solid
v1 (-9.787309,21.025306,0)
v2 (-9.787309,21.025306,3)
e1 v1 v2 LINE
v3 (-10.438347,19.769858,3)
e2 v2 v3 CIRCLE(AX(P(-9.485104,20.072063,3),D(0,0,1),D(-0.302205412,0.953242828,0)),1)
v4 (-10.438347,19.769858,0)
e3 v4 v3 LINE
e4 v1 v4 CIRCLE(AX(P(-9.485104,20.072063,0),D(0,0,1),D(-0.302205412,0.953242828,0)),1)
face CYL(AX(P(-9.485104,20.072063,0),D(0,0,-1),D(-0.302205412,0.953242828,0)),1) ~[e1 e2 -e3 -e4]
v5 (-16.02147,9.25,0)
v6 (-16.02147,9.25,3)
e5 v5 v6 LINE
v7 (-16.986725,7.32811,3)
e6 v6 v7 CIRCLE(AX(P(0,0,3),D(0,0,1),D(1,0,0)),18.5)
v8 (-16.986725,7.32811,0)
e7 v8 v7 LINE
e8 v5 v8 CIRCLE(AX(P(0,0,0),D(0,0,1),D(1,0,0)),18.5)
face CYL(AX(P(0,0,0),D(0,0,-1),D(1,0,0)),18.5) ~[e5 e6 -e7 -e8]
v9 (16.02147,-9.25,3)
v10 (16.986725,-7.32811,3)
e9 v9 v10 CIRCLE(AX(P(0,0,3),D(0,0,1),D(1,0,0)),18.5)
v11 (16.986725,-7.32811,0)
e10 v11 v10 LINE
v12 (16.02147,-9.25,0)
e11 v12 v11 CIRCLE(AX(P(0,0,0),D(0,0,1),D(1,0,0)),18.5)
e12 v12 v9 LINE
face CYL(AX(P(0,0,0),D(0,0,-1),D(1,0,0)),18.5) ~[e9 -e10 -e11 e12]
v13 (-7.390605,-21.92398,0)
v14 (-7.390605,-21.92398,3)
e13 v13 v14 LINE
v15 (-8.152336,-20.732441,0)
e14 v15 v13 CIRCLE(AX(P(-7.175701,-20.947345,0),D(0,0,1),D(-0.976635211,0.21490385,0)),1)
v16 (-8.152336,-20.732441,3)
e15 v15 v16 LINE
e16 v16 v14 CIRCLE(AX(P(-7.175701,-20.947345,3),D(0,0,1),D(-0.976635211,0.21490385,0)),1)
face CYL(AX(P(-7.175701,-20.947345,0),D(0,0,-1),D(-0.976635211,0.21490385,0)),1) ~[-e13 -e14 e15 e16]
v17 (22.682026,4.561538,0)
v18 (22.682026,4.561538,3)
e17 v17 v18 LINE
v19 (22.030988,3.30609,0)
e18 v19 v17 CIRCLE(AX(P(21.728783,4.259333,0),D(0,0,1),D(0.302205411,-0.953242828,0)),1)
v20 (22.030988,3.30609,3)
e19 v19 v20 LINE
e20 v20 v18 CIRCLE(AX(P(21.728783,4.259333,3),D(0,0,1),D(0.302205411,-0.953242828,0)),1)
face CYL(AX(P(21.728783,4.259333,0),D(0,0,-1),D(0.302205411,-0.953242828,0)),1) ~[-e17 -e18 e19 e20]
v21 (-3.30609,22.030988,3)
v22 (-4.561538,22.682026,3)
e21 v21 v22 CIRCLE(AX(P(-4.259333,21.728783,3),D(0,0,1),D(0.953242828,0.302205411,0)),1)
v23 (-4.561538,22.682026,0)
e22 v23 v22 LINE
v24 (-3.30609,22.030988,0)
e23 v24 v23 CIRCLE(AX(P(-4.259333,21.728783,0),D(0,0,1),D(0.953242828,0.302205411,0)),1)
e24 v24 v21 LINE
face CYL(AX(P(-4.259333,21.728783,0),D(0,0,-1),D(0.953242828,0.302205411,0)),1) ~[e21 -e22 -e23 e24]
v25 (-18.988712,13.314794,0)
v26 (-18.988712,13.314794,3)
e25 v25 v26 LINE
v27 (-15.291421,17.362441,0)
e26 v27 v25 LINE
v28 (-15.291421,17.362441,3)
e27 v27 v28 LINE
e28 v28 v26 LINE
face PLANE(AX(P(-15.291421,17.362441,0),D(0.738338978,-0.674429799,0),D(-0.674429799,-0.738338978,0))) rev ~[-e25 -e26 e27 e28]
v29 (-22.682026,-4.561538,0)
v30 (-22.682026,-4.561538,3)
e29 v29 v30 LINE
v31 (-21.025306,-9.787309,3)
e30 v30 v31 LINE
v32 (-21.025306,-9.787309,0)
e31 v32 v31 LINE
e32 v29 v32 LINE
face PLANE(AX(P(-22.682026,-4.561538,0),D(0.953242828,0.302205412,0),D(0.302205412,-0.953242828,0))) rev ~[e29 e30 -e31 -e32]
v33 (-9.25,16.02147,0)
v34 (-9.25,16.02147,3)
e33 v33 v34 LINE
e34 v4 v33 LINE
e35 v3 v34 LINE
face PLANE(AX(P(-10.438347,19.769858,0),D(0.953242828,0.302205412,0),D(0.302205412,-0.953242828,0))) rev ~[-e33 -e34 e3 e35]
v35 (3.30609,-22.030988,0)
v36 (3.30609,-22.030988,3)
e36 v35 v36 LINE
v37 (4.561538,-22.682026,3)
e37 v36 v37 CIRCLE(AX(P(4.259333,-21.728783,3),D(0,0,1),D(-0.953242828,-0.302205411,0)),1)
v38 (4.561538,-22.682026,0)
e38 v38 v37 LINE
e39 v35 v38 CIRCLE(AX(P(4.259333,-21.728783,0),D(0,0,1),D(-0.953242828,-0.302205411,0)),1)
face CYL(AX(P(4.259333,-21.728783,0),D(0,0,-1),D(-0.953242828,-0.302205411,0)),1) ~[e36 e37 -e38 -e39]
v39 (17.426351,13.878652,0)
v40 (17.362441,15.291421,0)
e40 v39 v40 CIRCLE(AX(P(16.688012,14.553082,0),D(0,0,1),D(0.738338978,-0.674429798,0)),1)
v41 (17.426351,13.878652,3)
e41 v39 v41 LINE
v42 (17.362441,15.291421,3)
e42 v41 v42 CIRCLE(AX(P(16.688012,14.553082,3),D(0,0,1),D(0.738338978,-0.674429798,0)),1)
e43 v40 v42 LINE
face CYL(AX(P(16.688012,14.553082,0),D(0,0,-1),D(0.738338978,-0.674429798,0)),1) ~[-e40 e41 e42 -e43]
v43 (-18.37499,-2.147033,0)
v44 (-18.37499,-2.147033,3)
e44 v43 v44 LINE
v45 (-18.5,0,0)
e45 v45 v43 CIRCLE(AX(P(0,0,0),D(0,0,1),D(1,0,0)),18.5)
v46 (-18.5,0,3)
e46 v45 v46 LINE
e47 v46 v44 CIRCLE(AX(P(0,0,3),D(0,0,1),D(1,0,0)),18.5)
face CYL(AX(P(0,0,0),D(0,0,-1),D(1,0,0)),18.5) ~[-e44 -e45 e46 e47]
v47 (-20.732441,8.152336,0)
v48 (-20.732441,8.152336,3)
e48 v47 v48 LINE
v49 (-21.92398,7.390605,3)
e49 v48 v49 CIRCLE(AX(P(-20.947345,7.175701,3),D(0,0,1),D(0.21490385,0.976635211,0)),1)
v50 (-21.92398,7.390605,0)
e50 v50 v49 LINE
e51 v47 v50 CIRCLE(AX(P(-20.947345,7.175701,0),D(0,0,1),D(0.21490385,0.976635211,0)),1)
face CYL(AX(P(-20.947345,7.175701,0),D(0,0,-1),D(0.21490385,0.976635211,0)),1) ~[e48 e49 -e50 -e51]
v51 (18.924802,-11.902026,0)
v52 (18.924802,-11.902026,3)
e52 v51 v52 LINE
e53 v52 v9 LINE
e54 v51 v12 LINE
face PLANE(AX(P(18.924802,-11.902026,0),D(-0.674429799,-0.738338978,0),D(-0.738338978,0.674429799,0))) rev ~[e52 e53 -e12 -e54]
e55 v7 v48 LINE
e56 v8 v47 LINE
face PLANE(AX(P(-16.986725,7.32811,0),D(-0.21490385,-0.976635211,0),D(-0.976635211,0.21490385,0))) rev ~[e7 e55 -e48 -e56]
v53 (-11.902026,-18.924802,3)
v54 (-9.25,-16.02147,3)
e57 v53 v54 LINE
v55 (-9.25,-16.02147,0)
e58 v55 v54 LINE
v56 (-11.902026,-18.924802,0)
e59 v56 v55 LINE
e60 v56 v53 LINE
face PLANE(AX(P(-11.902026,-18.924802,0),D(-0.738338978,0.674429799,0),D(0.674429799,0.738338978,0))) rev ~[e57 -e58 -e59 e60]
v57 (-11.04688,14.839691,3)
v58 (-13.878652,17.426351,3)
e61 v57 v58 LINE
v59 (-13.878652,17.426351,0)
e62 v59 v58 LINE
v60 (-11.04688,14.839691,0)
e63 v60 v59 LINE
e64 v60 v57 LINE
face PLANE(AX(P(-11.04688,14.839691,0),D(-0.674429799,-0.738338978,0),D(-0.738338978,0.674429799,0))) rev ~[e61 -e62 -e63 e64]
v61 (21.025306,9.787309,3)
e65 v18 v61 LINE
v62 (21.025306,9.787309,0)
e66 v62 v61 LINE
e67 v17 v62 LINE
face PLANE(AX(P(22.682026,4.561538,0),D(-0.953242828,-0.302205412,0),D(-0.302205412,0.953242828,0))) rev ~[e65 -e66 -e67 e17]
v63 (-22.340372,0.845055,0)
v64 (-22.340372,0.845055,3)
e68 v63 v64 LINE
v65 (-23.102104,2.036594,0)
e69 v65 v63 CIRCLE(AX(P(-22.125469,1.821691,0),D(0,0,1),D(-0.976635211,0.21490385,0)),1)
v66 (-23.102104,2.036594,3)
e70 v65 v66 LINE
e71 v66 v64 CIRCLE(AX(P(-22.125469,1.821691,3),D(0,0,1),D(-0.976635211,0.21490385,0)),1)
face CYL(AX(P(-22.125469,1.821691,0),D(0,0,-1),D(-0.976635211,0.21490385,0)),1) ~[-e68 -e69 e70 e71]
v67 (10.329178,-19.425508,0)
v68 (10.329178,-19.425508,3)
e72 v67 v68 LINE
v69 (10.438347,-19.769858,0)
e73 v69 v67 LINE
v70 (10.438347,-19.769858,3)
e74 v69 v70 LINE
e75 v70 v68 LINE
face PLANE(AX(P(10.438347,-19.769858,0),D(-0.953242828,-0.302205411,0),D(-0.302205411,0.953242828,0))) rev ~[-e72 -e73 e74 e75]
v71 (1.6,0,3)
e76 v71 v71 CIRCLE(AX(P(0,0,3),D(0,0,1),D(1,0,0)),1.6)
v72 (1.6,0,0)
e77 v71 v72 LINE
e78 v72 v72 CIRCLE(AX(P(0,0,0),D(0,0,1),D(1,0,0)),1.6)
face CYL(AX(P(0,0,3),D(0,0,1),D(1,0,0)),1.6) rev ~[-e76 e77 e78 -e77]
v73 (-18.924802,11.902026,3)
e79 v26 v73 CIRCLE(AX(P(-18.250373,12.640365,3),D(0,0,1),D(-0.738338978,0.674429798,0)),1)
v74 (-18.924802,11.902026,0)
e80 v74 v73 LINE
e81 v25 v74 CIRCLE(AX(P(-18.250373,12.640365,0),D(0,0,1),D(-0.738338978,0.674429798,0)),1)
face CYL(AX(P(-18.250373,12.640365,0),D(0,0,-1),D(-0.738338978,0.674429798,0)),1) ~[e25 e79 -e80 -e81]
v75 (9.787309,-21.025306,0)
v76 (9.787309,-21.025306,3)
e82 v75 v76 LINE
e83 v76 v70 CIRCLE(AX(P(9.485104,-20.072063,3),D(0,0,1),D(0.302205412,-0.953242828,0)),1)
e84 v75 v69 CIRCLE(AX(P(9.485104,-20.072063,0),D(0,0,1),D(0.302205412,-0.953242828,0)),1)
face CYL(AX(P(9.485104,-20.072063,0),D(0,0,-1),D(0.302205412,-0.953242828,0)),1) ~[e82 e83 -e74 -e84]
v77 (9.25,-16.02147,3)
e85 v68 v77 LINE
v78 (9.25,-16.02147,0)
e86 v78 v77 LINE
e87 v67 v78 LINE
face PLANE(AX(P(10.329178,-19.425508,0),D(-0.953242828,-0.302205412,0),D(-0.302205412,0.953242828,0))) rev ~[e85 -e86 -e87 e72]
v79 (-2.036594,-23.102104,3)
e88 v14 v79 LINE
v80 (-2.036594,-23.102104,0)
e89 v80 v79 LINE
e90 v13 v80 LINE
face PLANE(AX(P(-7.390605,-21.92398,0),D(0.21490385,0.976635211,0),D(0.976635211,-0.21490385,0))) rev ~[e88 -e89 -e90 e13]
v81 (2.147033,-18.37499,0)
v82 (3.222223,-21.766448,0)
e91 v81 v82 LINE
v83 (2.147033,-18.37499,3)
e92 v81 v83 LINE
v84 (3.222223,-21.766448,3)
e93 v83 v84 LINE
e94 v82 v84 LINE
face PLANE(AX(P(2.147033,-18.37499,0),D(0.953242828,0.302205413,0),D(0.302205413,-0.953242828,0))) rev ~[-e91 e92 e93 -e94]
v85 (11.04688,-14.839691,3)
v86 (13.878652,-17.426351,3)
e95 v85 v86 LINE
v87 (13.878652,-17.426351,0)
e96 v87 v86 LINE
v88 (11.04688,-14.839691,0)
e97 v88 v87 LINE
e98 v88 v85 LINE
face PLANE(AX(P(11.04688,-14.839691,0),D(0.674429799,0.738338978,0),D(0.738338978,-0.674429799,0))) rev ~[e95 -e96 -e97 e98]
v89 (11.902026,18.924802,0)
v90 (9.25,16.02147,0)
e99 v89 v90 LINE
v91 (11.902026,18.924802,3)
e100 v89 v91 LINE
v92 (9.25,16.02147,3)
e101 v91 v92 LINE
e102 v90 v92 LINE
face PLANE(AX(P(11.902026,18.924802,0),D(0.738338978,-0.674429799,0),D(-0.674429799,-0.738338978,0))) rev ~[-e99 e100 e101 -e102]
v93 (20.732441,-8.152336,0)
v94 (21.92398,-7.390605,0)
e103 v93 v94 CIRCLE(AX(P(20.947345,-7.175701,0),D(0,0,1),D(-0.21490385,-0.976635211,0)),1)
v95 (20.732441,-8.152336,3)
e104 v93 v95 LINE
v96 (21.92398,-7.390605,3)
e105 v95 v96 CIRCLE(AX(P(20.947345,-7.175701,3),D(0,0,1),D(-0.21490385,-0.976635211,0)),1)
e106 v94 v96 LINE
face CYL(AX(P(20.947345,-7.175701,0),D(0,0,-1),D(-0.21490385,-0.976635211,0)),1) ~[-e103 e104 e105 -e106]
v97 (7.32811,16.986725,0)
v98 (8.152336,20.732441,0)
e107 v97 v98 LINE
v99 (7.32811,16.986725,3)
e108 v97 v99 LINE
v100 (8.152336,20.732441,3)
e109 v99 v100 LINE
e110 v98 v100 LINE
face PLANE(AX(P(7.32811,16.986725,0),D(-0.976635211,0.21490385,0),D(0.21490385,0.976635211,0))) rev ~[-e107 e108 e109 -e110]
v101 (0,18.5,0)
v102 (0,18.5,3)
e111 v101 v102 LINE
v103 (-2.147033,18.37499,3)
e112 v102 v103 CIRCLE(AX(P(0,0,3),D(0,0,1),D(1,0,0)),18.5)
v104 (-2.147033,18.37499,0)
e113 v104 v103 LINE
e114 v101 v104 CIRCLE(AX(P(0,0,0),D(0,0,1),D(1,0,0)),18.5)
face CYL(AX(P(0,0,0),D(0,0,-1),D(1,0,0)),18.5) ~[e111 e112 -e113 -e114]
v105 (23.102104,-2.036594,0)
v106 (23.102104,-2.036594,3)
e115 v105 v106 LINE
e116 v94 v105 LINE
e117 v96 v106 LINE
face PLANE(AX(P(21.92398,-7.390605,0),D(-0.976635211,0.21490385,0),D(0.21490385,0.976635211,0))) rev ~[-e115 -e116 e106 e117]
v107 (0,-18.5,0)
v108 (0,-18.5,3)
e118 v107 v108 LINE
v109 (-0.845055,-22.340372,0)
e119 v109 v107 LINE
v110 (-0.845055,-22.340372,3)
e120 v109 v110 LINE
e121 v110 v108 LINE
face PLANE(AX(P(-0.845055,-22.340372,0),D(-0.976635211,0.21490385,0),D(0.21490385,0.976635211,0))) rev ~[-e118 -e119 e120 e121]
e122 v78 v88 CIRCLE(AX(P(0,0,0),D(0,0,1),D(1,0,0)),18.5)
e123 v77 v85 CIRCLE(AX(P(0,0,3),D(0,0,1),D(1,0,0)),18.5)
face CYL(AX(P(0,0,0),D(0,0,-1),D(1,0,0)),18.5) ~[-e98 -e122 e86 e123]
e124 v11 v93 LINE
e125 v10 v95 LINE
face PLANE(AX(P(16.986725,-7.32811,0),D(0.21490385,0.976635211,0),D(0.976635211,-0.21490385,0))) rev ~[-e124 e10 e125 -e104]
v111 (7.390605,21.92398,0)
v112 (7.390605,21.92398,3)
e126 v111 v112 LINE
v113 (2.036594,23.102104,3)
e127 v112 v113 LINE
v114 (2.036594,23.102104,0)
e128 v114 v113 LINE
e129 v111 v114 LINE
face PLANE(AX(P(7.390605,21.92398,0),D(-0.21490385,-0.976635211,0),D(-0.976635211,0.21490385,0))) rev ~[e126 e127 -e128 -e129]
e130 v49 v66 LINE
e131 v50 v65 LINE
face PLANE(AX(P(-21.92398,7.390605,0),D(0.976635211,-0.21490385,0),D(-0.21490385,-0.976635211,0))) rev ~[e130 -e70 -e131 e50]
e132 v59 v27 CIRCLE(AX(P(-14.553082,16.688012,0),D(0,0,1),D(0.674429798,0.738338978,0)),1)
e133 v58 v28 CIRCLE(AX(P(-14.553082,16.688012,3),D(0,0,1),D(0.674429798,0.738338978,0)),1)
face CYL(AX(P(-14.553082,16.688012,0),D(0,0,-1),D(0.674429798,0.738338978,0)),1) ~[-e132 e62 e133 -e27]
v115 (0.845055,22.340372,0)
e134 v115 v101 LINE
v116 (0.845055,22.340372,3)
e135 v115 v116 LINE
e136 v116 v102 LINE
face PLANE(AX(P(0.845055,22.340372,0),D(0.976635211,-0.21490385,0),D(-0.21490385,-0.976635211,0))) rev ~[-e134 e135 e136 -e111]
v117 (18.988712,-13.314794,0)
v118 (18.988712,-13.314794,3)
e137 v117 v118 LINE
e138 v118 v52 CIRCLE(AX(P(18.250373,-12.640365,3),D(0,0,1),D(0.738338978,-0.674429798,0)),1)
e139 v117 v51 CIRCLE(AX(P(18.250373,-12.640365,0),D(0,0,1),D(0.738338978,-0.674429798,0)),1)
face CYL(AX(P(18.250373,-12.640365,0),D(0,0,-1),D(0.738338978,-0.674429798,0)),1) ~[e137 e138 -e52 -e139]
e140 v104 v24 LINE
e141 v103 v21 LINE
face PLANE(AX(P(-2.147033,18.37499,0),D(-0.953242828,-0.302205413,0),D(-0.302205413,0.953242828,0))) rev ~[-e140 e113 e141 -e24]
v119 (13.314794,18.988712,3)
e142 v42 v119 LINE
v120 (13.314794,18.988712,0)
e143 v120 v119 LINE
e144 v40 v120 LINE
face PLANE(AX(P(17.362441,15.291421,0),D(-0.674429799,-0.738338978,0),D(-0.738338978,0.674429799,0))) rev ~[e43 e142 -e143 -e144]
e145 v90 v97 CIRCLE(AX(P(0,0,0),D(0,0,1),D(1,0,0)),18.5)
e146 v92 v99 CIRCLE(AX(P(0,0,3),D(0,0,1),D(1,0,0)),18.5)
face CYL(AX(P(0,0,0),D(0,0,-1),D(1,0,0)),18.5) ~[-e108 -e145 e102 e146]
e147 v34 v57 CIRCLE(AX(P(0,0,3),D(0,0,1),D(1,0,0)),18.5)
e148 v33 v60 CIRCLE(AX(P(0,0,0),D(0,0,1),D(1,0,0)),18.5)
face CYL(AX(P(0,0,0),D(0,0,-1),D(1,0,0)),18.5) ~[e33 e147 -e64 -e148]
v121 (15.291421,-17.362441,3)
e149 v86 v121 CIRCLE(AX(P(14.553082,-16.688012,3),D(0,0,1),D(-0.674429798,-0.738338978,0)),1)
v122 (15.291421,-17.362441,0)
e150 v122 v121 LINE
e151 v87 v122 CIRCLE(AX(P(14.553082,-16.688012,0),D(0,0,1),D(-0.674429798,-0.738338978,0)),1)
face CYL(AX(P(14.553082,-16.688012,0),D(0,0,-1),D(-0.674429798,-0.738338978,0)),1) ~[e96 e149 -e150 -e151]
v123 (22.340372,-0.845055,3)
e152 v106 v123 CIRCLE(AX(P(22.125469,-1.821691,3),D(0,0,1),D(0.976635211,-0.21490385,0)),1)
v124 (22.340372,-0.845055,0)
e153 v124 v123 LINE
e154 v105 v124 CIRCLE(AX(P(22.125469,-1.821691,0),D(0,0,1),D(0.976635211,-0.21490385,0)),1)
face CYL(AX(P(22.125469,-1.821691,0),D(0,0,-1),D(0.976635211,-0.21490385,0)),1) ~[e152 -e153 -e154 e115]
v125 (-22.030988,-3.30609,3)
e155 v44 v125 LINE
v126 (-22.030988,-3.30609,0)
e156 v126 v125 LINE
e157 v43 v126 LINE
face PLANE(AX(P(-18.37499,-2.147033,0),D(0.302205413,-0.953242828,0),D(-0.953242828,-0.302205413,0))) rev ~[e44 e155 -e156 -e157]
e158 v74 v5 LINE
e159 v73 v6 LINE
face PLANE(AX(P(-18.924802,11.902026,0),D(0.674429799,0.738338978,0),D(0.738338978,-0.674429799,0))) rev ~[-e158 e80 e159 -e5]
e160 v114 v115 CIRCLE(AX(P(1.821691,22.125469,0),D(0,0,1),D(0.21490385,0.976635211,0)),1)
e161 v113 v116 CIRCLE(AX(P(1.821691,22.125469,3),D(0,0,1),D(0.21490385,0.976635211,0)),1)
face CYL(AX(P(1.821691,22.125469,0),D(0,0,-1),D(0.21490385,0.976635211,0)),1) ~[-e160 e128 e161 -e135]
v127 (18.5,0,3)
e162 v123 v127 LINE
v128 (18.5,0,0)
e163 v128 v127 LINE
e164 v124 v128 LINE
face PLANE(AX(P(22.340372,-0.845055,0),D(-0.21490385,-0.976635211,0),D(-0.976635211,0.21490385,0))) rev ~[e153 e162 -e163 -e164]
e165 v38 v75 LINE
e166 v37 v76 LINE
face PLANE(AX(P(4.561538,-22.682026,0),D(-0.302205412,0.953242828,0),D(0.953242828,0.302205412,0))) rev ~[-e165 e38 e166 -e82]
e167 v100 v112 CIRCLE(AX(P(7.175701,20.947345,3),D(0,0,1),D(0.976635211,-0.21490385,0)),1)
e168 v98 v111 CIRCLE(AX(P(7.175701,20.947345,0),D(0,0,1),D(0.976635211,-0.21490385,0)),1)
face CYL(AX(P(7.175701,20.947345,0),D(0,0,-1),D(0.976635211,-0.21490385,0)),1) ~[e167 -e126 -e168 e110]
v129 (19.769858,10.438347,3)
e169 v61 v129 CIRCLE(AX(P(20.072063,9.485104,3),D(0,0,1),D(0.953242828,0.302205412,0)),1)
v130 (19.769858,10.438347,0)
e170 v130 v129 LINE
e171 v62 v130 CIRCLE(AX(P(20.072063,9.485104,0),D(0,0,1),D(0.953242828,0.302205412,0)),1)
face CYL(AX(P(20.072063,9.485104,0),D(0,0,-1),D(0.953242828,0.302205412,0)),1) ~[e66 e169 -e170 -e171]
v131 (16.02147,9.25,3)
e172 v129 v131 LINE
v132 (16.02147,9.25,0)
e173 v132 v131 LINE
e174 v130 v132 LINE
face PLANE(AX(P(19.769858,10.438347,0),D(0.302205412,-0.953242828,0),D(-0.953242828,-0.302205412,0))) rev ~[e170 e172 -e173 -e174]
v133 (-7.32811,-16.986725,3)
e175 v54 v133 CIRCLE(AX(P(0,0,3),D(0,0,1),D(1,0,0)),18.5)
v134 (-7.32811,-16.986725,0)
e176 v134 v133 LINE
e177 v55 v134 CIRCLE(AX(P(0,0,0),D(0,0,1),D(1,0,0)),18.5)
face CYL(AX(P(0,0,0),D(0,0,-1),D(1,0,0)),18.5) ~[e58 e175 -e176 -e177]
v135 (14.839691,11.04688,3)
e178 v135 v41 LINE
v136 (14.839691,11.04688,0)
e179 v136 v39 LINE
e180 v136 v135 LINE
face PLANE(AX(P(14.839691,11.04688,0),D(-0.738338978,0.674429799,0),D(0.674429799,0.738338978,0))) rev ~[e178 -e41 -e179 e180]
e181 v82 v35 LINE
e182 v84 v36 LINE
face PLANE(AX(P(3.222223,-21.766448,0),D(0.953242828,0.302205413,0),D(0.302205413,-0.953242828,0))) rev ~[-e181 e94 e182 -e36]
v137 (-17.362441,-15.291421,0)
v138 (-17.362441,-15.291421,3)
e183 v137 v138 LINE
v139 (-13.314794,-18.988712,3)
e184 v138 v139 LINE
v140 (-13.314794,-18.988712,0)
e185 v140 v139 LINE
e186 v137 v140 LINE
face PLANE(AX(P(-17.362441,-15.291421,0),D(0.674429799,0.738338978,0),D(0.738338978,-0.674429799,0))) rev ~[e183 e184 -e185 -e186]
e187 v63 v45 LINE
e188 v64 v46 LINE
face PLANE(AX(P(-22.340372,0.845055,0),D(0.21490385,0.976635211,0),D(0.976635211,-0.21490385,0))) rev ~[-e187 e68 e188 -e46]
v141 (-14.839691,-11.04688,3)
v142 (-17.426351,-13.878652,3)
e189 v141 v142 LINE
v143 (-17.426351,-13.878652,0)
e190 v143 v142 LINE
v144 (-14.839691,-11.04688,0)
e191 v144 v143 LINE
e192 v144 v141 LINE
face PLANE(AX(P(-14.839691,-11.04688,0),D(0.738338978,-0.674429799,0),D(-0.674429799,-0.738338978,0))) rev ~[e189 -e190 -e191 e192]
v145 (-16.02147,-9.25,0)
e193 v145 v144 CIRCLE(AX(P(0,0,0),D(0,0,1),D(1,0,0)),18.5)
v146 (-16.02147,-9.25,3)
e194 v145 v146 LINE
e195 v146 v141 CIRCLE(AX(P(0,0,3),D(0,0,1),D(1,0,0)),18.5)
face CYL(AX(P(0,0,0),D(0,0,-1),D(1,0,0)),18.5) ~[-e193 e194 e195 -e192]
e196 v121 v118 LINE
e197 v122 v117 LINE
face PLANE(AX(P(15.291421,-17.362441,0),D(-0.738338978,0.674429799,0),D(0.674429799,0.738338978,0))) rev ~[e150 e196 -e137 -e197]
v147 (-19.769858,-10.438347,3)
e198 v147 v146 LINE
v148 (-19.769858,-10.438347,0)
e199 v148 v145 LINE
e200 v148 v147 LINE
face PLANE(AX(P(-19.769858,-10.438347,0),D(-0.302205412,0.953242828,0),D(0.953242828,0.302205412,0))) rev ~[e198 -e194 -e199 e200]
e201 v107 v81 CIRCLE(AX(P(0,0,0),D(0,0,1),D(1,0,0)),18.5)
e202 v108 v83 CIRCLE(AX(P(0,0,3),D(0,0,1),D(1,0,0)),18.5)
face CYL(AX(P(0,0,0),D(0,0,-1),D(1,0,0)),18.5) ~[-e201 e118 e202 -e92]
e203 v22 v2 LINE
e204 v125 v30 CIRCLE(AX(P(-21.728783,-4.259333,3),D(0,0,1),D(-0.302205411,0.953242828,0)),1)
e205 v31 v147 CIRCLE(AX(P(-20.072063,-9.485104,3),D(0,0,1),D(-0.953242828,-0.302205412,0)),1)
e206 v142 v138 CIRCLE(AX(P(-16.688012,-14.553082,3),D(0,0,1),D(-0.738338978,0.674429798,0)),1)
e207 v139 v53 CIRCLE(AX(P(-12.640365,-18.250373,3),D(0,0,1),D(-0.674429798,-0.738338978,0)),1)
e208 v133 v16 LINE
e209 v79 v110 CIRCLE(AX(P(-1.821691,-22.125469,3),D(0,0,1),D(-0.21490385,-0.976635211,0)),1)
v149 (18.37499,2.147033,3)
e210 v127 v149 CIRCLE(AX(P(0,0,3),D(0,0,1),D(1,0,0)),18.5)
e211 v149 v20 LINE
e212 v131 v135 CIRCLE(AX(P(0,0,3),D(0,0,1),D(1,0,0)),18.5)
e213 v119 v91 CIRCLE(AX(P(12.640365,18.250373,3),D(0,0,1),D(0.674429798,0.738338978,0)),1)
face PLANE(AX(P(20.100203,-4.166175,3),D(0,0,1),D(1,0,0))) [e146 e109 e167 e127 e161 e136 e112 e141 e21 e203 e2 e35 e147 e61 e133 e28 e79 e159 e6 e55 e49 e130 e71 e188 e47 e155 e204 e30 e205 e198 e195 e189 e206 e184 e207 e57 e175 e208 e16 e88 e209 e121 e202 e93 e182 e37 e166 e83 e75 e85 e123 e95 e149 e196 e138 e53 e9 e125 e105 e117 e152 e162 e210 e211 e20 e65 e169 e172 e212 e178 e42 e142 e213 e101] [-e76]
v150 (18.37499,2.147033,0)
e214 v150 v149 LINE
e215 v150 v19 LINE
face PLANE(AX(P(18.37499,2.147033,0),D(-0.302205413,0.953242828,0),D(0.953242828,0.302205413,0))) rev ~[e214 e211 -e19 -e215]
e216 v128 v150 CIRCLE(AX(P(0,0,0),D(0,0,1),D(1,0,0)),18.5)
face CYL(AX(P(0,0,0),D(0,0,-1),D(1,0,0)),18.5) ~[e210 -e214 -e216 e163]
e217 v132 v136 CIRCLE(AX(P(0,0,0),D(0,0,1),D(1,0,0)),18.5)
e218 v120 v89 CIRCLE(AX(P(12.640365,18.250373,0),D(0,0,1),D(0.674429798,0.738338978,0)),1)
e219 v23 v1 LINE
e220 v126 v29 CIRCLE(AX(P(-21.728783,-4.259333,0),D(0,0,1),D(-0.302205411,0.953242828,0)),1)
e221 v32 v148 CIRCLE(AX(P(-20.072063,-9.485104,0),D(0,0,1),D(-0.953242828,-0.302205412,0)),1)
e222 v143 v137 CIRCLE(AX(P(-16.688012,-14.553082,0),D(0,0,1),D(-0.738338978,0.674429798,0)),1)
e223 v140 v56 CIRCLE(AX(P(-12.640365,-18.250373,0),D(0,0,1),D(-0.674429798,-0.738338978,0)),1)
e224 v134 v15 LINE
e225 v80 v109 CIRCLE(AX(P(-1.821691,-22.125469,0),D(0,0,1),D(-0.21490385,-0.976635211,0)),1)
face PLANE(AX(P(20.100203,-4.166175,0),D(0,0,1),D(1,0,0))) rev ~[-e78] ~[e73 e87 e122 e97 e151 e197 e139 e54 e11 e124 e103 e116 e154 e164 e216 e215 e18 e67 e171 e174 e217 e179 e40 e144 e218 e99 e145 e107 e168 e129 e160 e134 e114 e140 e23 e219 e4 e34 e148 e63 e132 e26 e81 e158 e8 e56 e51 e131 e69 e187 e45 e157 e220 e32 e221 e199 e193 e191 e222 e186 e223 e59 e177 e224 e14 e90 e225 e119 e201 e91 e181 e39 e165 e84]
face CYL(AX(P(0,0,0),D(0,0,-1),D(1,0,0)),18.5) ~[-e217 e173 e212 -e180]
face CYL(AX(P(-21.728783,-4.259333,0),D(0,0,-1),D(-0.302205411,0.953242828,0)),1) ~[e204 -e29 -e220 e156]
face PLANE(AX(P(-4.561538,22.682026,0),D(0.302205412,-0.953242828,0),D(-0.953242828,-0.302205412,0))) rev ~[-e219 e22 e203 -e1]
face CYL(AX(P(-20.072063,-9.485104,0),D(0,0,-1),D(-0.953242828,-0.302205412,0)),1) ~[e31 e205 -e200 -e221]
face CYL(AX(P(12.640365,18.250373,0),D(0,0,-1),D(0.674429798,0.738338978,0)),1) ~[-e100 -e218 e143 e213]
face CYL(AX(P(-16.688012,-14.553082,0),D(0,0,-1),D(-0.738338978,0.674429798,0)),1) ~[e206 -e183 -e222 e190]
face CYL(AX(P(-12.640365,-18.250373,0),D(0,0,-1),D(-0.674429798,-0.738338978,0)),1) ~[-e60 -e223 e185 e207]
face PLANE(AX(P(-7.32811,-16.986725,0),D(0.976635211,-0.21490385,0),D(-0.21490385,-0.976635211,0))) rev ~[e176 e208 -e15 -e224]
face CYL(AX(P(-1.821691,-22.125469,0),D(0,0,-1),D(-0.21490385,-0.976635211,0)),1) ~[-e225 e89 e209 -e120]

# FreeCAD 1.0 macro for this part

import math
import FreeCAD as App
import Part
import Sketcher
from FreeCAD import Vector

doc = App.newDocument("Part")
body = doc.addObject("PartDesign::Body", "Body")

sketch1 = body.newObject("Sketcher::SketchObject", "Sketch")
sketch1.AttachmentSupport = (doc.getObject("XY_Plane"), [""])
sketch1.MapMode = "FlatFace"
sketch1.addGeometry(Part.Circle(Vector(0, 0, 0), Vector(0, 0, 1), 18.5), False)
sketch1.addConstraint(Sketcher.Constraint("Coincident", 0, 3, -1, 1))
sketch1.addConstraint(Sketcher.Constraint("Diameter", 0, 37.0))
pad1 = body.newObject("PartDesign::Pad", "Pad")
pad1.Profile = sketch1
pad1.Length = 3

sketch2 = body.newObject("Sketcher::SketchObject", "Sketch001")
sketch2.AttachmentSupport = (doc.getObject("XY_Plane"), [""])
sketch2.MapMode = "FlatFace"
sketch2.addGeometry(Part.LineSegment(Vector(0.845055, 22.340372, 0), Vector(0, 18.5, 0)), False)
sketch2.addGeometry(Part.ArcOfCircle(Part.Circle(Vector(0, 0, 0), Vector(0, 0, 1), 18.5), math.radians(66.664529), math.radians(90)), False)
sketch2.addGeometry(Part.LineSegment(Vector(7.32811, 16.986725, 0), Vector(8.152336, 20.732441, 0)), False)
sketch2.addGeometry(Part.ArcOfCircle(Part.Circle(Vector(7.175701, 20.947345, 0), Vector(0, 0, 1), 1), math.radians(-12.409886), math.radians(77.590114)), False)
sketch2.addGeometry(Part.LineSegment(Vector(7.390605, 21.92398, 0), Vector(2.036594, 23.102104, 0)), False)
sketch2.addGeometry(Part.ArcOfCircle(Part.Circle(Vector(1.821691, 22.125469, 0), Vector(0, 0, 1), 1), math.radians(77.590114), math.radians(167.590114)), False)
sketch2.addGeometry(Part.LineSegment(Vector(14.839691, 11.04688, 0), Vector(17.426351, 13.878652, 0)), False)
sketch2.addGeometry(Part.ArcOfCircle(Part.Circle(Vector(16.688012, 14.553082, 0), Vector(0, 0, 1), 1), math.radians(-42.409886), math.radians(47.590114)), False)
sketch2.addGeometry(Part.LineSegment(Vector(17.362441, 15.291421, 0), Vector(13.314794, 18.988712, 0)), False)
sketch2.addGeometry(Part.ArcOfCircle(Part.Circle(Vector(12.640365, 18.250373, 0), Vector(0, 0, 1), 1), math.radians(47.590114), math.radians(137.590114)), False)
sketch2.addGeometry(Part.LineSegment(Vector(11.902026, 18.924802, 0), Vector(9.25, 16.02147, 0)), False)
sketch2.addGeometry(Part.ArcOfCircle(Part.Circle(Vector(0, 0, 0), Vector(0, 0, 1), 18.5), math.radians(36.664529), math.radians(60)), False)
sketch2.addGeometry(Part.LineSegment(Vector(18.37499, 2.147033, 0), Vector(22.030988, 3.30609, 0)), False)
sketch2.addGeometry(Part.ArcOfCircle(Part.Circle(Vector(21.728783, 4.259333, 0), Vector(0, 0, 1), 1), math.radians(-72.409887), math.radians(17.590114)), False)
sketch2.addGeometry(Part.LineSegment(Vector(22.682026, 4.561538, 0), Vector(21.025306, 9.787309, 0)), False)
sketch2.addGeometry(Part.ArcOfCircle(Part.Circle(Vector(20.072063, 9.485104, 0), Vector(0, 0, 1), 1), math.radians(17.590114), math.radians(107.590114)), False)
sketch2.addGeometry(Part.LineSegment(Vector(19.769858, 10.438347, 0), Vector(16.02147, 9.25, 0)), False)
sketch2.addGeometry(Part.ArcOfCircle(Part.Circle(Vector(0, 0, 0), Vector(0, 0, 1), 18.5), math.radians(6.664529), math.radians(30)), False)
sketch2.addGeometry(Part.LineSegment(Vector(16.986725, -7.32811, 0), Vector(20.732441, -8.152336, 0)), False)
sketch2.addGeometry(Part.ArcOfCircle(Part.Circle(Vector(20.947345, -7.175701, 0), Vector(0, 0, 1), 1), math.radians(-102.409886), math.radians(-12.409886)), False)
sketch2.addGeometry(Part.LineSegment(Vector(21.92398, -7.390605, 0), Vector(23.102104, -2.036594, 0)), False)
sketch2.addGeometry(Part.ArcOfCircle(Part.Circle(Vector(22.125469, -1.821691, 0), Vector(0, 0, 1), 1), math.radians(-12.409886), math.radians(77.590114)), False)
sketch2.addGeometry(Part.LineSegment(Vector(22.340372, -0.845055, 0), Vector(18.5, 0, 0)), False)
sketch2.addGeometry(Part.ArcOfCircle(Part.Circle(Vector(0, 0, 0), Vector(0, 0, 1), 18.5), math.radians(-23.335471), math.radians(0)), False)
sketch2.addGeometry(Part.LineSegment(Vector(11.04688, -14.839691, 0), Vector(13.878652, -17.426351, 0)), False)
sketch2.addGeometry(Part.ArcOfCircle(Part.Circle(Vector(14.553082, -16.688012, 0), Vector(0, 0, 1), 1), math.radians(-132.409886), math.radians(-42.409886)), False)
sketch2.addGeometry(Part.LineSegment(Vector(15.291421, -17.362441, 0), Vector(18.988712, -13.314794, 0)), False)
sketch2.addGeometry(Part.ArcOfCircle(Part.Circle(Vector(18.250373, -12.640365, 0), Vector(0, 0, 1), 1), math.radians(-42.409886), math.radians(47.590114)), False)
sketch2.addGeometry(Part.LineSegment(Vector(18.924802, -11.902026, 0), Vector(16.02147, -9.25, 0)), False)
sketch2.addGeometry(Part.ArcOfCircle(Part.Circle(Vector(0, 0, 0), Vector(0, 0, 1), 18.5), math.radians(-53.335471), math.radians(-30)), False)
sketch2.addGeometry(Part.LineSegment(Vector(3.222223, -21.766448, 0), Vector(3.30609, -22.030988, 0)), False)
sketch2.addGeometry(Part.ArcOfCircle(Part.Circle(Vector(4.259333, -21.728783, 0), Vector(0, 0, 1), 1), math.radians(-162.409887), math.radians(-72.409886)), False)
sketch2.addGeometry(Part.LineSegment(Vector(4.561538, -22.682026, 0), Vector(9.787309, -21.025306, 0)), False)
sketch2.addGeometry(Part.ArcOfCircle(Part.Circle(Vector(9.485104, -20.072063, 0), Vector(0, 0, 1), 1), math.radians(-72.409886), math.radians(17.590114)), False)
sketch2.addGeometry(Part.LineSegment(Vector(10.438347, -19.769858, 0), Vector(10.329178, -19.425508, 0)), False)
sketch2.addGeometry(Part.LineSegment(Vector(10.329178, -19.425508, 0), Vector(9.25, -16.02147, 0)), False)
sketch2.addGeometry(Part.ArcOfCircle(Part.Circle(Vector(0, 0, 0), Vector(0, 0, 1), 18.5), math.radians(-83.335471), math.radians(-60)), False)
sketch2.addGeometry(Part.LineSegment(Vector(2.147033, -18.37499, 0), Vector(3.222223, -21.766448, 0)), False)
sketch2.addGeometry(Part.LineSegment(Vector(-7.32811, -16.986725, 0), Vector(-8.152336, -20.732441, 0)), False)
sketch2.addGeometry(Part.ArcOfCircle(Part.Circle(Vector(-7.175701, -20.947345, 0), Vector(0, 0, 1), 1), math.radians(167.590114), math.radians(257.590114)), False)
sketch2.addGeometry(Part.LineSegment(Vector(-7.390605, -21.92398, 0), Vector(-2.036594, -23.102104, 0)), False)
sketch2.addGeometry(Part.ArcOfCircle(Part.Circle(Vector(-1.821691, -22.125469, 0), Vector(0, 0, 1), 1), math.radians(-102.409886), math.radians(-12.409886)), False)
sketch2.addGeometry(Part.LineSegment(Vector(-0.845055, -22.340372, 0), Vector(0, -18.5, 0)), False)
sketch2.addGeometry(Part.ArcOfCircle(Part.Circle(Vector(0, 0, 0), Vector(0, 0, 1), 18.5), math.radians(-113.335471), math.radians(-90)), False)
sketch2.addGeometry(Part.LineSegment(Vector(-14.839691, -11.04688, 0), Vector(-17.426351, -13.878652, 0)), False)
sketch2.addGeometry(Part.ArcOfCircle(Part.Circle(Vector(-16.688012, -14.553082, 0), Vector(0, 0, 1), 1), math.radians(137.590114), math.radians(227.590114)), False)
sketch2.addGeometry(Part.LineSegment(Vector(-17.362441, -15.291421, 0), Vector(-13.314794, -18.988712, 0)), False)
sketch2.addGeometry(Part.ArcOfCircle(Part.Circle(Vector(-12.640365, -18.250373, 0), Vector(0, 0, 1), 1), math.radians(-132.409886), math.radians(-42.409886)), False)
sketch2.addGeometry(Part.LineSegment(Vector(-11.902026, -18.924802, 0), Vector(-9.25, -16.02147, 0)), False)
sketch2.addGeometry(Part.ArcOfCircle(Part.Circle(Vector(0, 0, 0), Vector(0, 0, 1), 18.5), math.radians(-143.335471), math.radians(-120)), False)
sketch2.addGeometry(Part.LineSegment(Vector(-18.37499, -2.147033, 0), Vector(-22.030988, -3.30609, 0)), False)
sketch2.addGeometry(Part.ArcOfCircle(Part.Circle(Vector(-21.728783, -4.259333, 0), Vector(0, 0, 1), 1), math.radians(107.590113), math.radians(197.590114)), False)
sketch2.addGeometry(Part.LineSegment(Vector(-22.682026, -4.561538, 0), Vector(-21.025306, -9.787309, 0)), False)
sketch2.addGeometry(Part.ArcOfCircle(Part.Circle(Vector(-20.072063, -9.485104, 0), Vector(0, 0, 1), 1), math.radians(-162.409886), math.radians(-72.409886)), False)
sketch2.addGeometry(Part.LineSegment(Vector(-19.769858, -10.438347, 0), Vector(-16.02147, -9.25, 0)), False)
sketch2.addGeometry(Part.ArcOfCircle(Part.Circle(Vector(0, 0, 0), Vector(0, 0, 1), 18.5), math.radians(-173.335471), math.radians(-150)), False)
sketch2.addGeometry(Part.LineSegment(Vector(-16.986725, 7.32811, 0), Vector(-20.732441, 8.152336, 0)), False)
sketch2.addGeometry(Part.ArcOfCircle(Part.Circle(Vector(-20.947345, 7.175701, 0), Vector(0, 0, 1), 1), math.radians(77.590114), math.radians(167.590114)), False)
sketch2.addGeometry(Part.LineSegment(Vector(-21.92398, 7.390605, 0), Vector(-23.102104, 2.036594, 0)), False)
sketch2.addGeometry(Part.ArcOfCircle(Part.Circle(Vector(-22.125469, 1.821691, 0), Vector(0, 0, 1), 1), math.radians(167.590114), math.radians(257.590114)), False)
sketch2.addGeometry(Part.LineSegment(Vector(-22.340372, 0.845055, 0), Vector(-18.5, 0, 0)), False)
sketch2.addGeometry(Part.ArcOfCircle(Part.Circle(Vector(0, 0, 0), Vector(0, 0, 1), 18.5), math.radians(156.664529), math.radians(180)), False)
sketch2.addGeometry(Part.LineSegment(Vector(-11.04688, 14.839691, 0), Vector(-13.878652, 17.426351, 0)), False)
sketch2.addGeometry(Part.ArcOfCircle(Part.Circle(Vector(-14.553082, 16.688012, 0), Vector(0, 0, 1), 1), math.radians(47.590114), math.radians(137.590114)), False)
sketch2.addGeometry(Part.LineSegment(Vector(-15.291421, 17.362441, 0), Vector(-18.988712, 13.314794, 0)), False)
sketch2.addGeometry(Part.ArcOfCircle(Part.Circle(Vector(-18.250373, 12.640365, 0), Vector(0, 0, 1), 1), math.radians(137.590114), math.radians(227.590114)), False)
sketch2.addGeometry(Part.LineSegment(Vector(-18.924802, 11.902026, 0), Vector(-16.02147, 9.25, 0)), False)
sketch2.addGeometry(Part.ArcOfCircle(Part.Circle(Vector(0, 0, 0), Vector(0, 0, 1), 18.5), math.radians(126.664529), math.radians(150)), False)
sketch2.addGeometry(Part.LineSegment(Vector(-2.147033, 18.37499, 0), Vector(-3.30609, 22.030988, 0)), False)
sketch2.addGeometry(Part.ArcOfCircle(Part.Circle(Vector(-4.259333, 21.728783, 0), Vector(0, 0, 1), 1), math.radians(17.590113), math.radians(107.590114)), False)
sketch2.addGeometry(Part.LineSegment(Vector(-4.561538, 22.682026, 0), Vector(-9.787309, 21.025306, 0)), False)
sketch2.addGeometry(Part.ArcOfCircle(Part.Circle(Vector(-9.485104, 20.072063, 0), Vector(0, 0, 1), 1), math.radians(107.590114), math.radians(197.590114)), False)
sketch2.addGeometry(Part.LineSegment(Vector(-10.438347, 19.769858, 0), Vector(-9.25, 16.02147, 0)), False)
sketch2.addGeometry(Part.ArcOfCircle(Part.Circle(Vector(0, 0, 0), Vector(0, 0, 1), 18.5), math.radians(96.664529), math.radians(120)), False)
sketch2.addConstraint(Sketcher.Constraint("Coincident", 0, 2, 1, 2))
sketch2.addConstraint(Sketcher.Constraint("Coincident", 1, 1, 2, 1))
sketch2.addConstraint(Sketcher.Constraint("Tangent", 2, 2, 3, 1))
sketch2.addConstraint(Sketcher.Constraint("Tangent", 3, 2, 4, 1))
sketch2.addConstraint(Sketcher.Constraint("Tangent", 4, 2, 5, 1))
sketch2.addConstraint(Sketcher.Constraint("Tangent", 5, 2, 0, 1))
sketch2.addConstraint(Sketcher.Constraint("Tangent", 6, 2, 7, 1))
sketch2.addConstraint(Sketcher.Constraint("Tangent", 7, 2, 8, 1))
sketch2.addConstraint(Sketcher.Constraint("Tangent", 8, 2, 9, 1))
sketch2.addConstraint(Sketcher.Constraint("Tangent", 9, 2, 10, 1))
sketch2.addConstraint(Sketcher.Constraint("Coincident", 10, 2, 11, 2))
sketch2.addConstraint(Sketcher.Constraint("Coincident", 11, 1, 6, 1))
sketch2.addConstraint(Sketcher.Constraint("Tangent", 12, 2, 13, 1))
sketch2.addConstraint(Sketcher.Constraint("Tangent", 13, 2, 14, 1))
sketch2.addConstraint(Sketcher.Constraint("Tangent", 14, 2, 15, 1))
sketch2.addConstraint(Sketcher.Constraint("Tangent", 15, 2, 16, 1))
sketch2.addConstraint(Sketcher.Constraint("Coincident", 16, 2, 17, 2))
sketch2.addConstraint(Sketcher.Constraint("Coincident", 17, 1, 12, 1))
sketch2.addConstraint(Sketcher.Constraint("Tangent", 18, 2, 19, 1))
sketch2.addConstraint(Sketcher.Constraint("Tangent", 19, 2, 20, 1))
sketch2.addConstraint(Sketcher.Constraint("Tangent", 20, 2, 21, 1))
sketch2.addConstraint(Sketcher.Constraint("Tangent", 21, 2, 22, 1))
sketch2.addConstraint(Sketcher.Constraint("Coincident", 22, 2, 23, 2))
sketch2.addConstraint(Sketcher.Constraint("Coincident", 23, 1, 18, 1))
sketch2.addConstraint(Sketcher.Constraint("Tangent", 24, 2, 25, 1))
sketch2.addConstraint(Sketcher.Constraint("Tangent", 25, 2, 26, 1))
sketch2.addConstraint(Sketcher.Constraint("Tangent", 26, 2, 27, 1))
sketch2.addConstraint(Sketcher.Constraint("Tangent", 27, 2, 28, 1))
sketch2.addConstraint(Sketcher.Constraint("Coincident", 28, 2, 29, 2))
sketch2.addConstraint(Sketcher.Constraint("Coincident", 29, 1, 24, 1))
sketch2.addConstraint(Sketcher.Constraint("Tangent", 30, 2, 31, 1))
sketch2.addConstraint(Sketcher.Constraint("Tangent", 31, 2, 32, 1))
sketch2.addConstraint(Sketcher.Constraint("Tangent", 32, 2, 33, 1))
sketch2.addConstraint(Sketcher.Constraint("Tangent", 33, 2, 34, 1))
sketch2.addConstraint(Sketcher.Constraint("Coincident", 34, 2, 35, 1))
sketch2.addConstraint(Sketcher.Constraint("Coincident", 35, 2, 36, 2))
sketch2.addConstraint(Sketcher.Constraint("Coincident", 36, 1, 37, 1))
sketch2.addConstraint(Sketcher.Constraint("Coincident", 37, 2, 30, 1))
sketch2.addConstraint(Sketcher.Constraint("Tangent", 38, 2, 39, 1))
sketch2.addConstraint(Sketcher.Constraint("Tangent", 39, 2, 40, 1))
sketch2.addConstraint(Sketcher.Constraint("Tangent", 40, 2, 41, 1))
sketch2.addConstraint(Sketcher.Constraint("Tangent", 41, 2, 42, 1))
sketch2.addConstraint(Sketcher.Constraint("Coincident", 42, 2, 43, 2))
sketch2.addConstraint(Sketcher.Constraint("Coincident", 43, 1, 38, 1))
sketch2.addConstraint(Sketcher.Constraint("Tangent", 44, 2, 45, 1))
sketch2.addConstraint(Sketcher.Constraint("Tangent", 45, 2, 46, 1))
sketch2.addConstraint(Sketcher.Constraint("Tangent", 46, 2, 47, 1))
sketch2.addConstraint(Sketcher.Constraint("Tangent", 47, 2, 48, 1))
sketch2.addConstraint(Sketcher.Constraint("Coincident", 48, 2, 49, 2))
sketch2.addConstraint(Sketcher.Constraint("Coincident", 49, 1, 44, 1))
sketch2.addConstraint(Sketcher.Constraint("Tangent", 50, 2, 51, 1))
sketch2.addConstraint(Sketcher.Constraint("Tangent", 51, 2, 52, 1))
sketch2.addConstraint(Sketcher.Constraint("Tangent", 52, 2, 53, 1))
sketch2.addConstraint(Sketcher.Constraint("Tangent", 53, 2, 54, 1))
sketch2.addConstraint(Sketcher.Constraint("Coincident", 54, 2, 55, 2))
sketch2.addConstraint(Sketcher.Constraint("Coincident", 55, 1, 50, 1))
sketch2.addConstraint(Sketcher.Constraint("Tangent", 56, 2, 57, 1))
sketch2.addConstraint(Sketcher.Constraint("Tangent", 57, 2, 58, 1))
sketch2.addConstraint(Sketcher.Constraint("Tangent", 58, 2, 59, 1))
sketch2.addConstraint(Sketcher.Constraint("Tangent", 59, 2, 60, 1))
sketch2.addConstraint(Sketcher.Constraint("Coincident", 60, 2, 61, 2))
sketch2.addConstraint(Sketcher.Constraint("Coincident", 61, 1, 56, 1))
sketch2.addConstraint(Sketcher.Constraint("Tangent", 62, 2, 63, 1))
sketch2.addConstraint(Sketcher.Constraint("Tangent", 63, 2, 64, 1))
sketch2.addConstraint(Sketcher.Constraint("Tangent", 64, 2, 65, 1))
sketch2.addConstraint(Sketcher.Constraint("Tangent", 65, 2, 66, 1))
sketch2.addConstraint(Sketcher.Constraint("Coincident", 66, 2, 67, 2))
sketch2.addConstraint(Sketcher.Constraint("Coincident", 67, 1, 62, 1))
sketch2.addConstraint(Sketcher.Constraint("Tangent", 68, 2, 69, 1))
sketch2.addConstraint(Sketcher.Constraint("Tangent", 69, 2, 70, 1))
sketch2.addConstraint(Sketcher.Constraint("Tangent", 70, 2, 71, 1))
sketch2.addConstraint(Sketcher.Constraint("Tangent", 71, 2, 72, 1))
sketch2.addConstraint(Sketcher.Constraint("Coincident", 72, 2, 73, 2))
sketch2.addConstraint(Sketcher.Constraint("Coincident", 73, 1, 68, 1))
sketch2.addConstraint(Sketcher.Constraint("Coincident", 1, 3, -1, 1))
sketch2.addConstraint(Sketcher.Constraint("Coincident", 11, 3, -1, 1))
sketch2.addConstraint(Sketcher.Constraint("Coincident", 17, 3, -1, 1))
sketch2.addConstraint(Sketcher.Constraint("Coincident", 23, 3, -1, 1))
sketch2.addConstraint(Sketcher.Constraint("Coincident", 29, 3, -1, 1))
sketch2.addConstraint(Sketcher.Constraint("Coincident", 36, 3, -1, 1))
sketch2.addConstraint(Sketcher.Constraint("Coincident", 43, 3, -1, 1))
sketch2.addConstraint(Sketcher.Constraint("Coincident", 49, 3, -1, 1))
sketch2.addConstraint(Sketcher.Constraint("Coincident", 55, 3, -1, 1))
sketch2.addConstraint(Sketcher.Constraint("Coincident", 61, 3, -1, 1))
sketch2.addConstraint(Sketcher.Constraint("Coincident", 67, 3, -1, 1))
sketch2.addConstraint(Sketcher.Constraint("Coincident", 73, 3, -1, 1))
sketch2.addConstraint(Sketcher.Constraint("Equal", 3, 5))
sketch2.addConstraint(Sketcher.Constraint("Equal", 5, 7))
sketch2.addConstraint(Sketcher.Constraint("Equal", 7, 9))
sketch2.addConstraint(Sketcher.Constraint("Equal", 1, 11))
sketch2.addConstraint(Sketcher.Constraint("Equal", 9, 13))
sketch2.addConstraint(Sketcher.Constraint("Equal", 13, 15))
sketch2.addConstraint(Sketcher.Constraint("Equal", 11, 17))
sketch2.addConstraint(Sketcher.Constraint("Equal", 15, 19))
sketch2.addConstraint(Sketcher.Constraint("Equal", 19, 21))
sketch2.addConstraint(Sketcher.Constraint("Equal", 17, 23))
sketch2.addConstraint(Sketcher.Constraint("Equal", 21, 25))
sketch2.addConstraint(Sketcher.Constraint("Equal", 25, 27))
sketch2.addConstraint(Sketcher.Constraint("Equal", 23, 29))
sketch2.addConstraint(Sketcher.Constraint("Equal", 27, 31))
sketch2.addConstraint(Sketcher.Constraint("Equal", 31, 33))
sketch2.addConstraint(Sketcher.Constraint("Equal", 29, 36))
sketch2.addConstraint(Sketcher.Constraint("Equal", 33, 39))
sketch2.addConstraint(Sketcher.Constraint("Equal", 39, 41))
sketch2.addConstraint(Sketcher.Constraint("Equal", 36, 43))
sketch2.addConstraint(Sketcher.Constraint("Equal", 41, 45))
sketch2.addConstraint(Sketcher.Constraint("Equal", 45, 47))
sketch2.addConstraint(Sketcher.Constraint("Equal", 43, 49))
sketch2.addConstraint(Sketcher.Constraint("Equal", 47, 51))
sketch2.addConstraint(Sketcher.Constraint("Equal", 51, 53))
sketch2.addConstraint(Sketcher.Constraint("Equal", 49, 55))
sketch2.addConstraint(Sketcher.Constraint("Equal", 53, 57))
sketch2.addConstraint(Sketcher.Constraint("Equal", 57, 59))
sketch2.addConstraint(Sketcher.Constraint("Equal", 55, 61))
sketch2.addConstraint(Sketcher.Constraint("Equal", 59, 63))
sketch2.addConstraint(Sketcher.Constraint("Equal", 63, 65))
sketch2.addConstraint(Sketcher.Constraint("Equal", 61, 67))
sketch2.addConstraint(Sketcher.Constraint("Equal", 65, 69))
sketch2.addConstraint(Sketcher.Constraint("Equal", 69, 71))
sketch2.addConstraint(Sketcher.Constraint("Equal", 67, 73))
sketch2.addConstraint(Sketcher.Constraint("Symmetric", 3, 3, 39, 3, -1, 1))
sketch2.addConstraint(Sketcher.Constraint("Symmetric", 5, 3, 41, 3, -1, 1))
sketch2.addConstraint(Sketcher.Constraint("Symmetric", 7, 3, 45, 3, -1, 1))
sketch2.addConstraint(Sketcher.Constraint("Symmetric", 9, 3, 47, 3, -1, 1))
sketch2.addConstraint(Sketcher.Constraint("Symmetric", 13, 3, 51, 3, -1, 1))
sketch2.addConstraint(Sketcher.Constraint("Symmetric", 15, 3, 53, 3, -1, 1))
sketch2.addConstraint(Sketcher.Constraint("Symmetric", 19, 3, 57, 3, -1, 1))
sketch2.addConstraint(Sketcher.Constraint("Symmetric", 21, 3, 59, 3, -1, 1))
sketch2.addConstraint(Sketcher.Constraint("Symmetric", 25, 3, 63, 3, -1, 1))
sketch2.addConstraint(Sketcher.Constraint("Symmetric", 27, 3, 65, 3, -1, 1))
sketch2.addConstraint(Sketcher.Constraint("Symmetric", 31, 3, 69, 3, -1, 1))
sketch2.addConstraint(Sketcher.Constraint("Symmetric", 33, 3, 71, 3, -1, 1))
sketch2.addConstraint(Sketcher.Constraint("PointOnObject", 0, 2, -2))
sketch2.addConstraint(Sketcher.Constraint("PointOnObject", 22, 2, -1))
sketch2.addConstraint(Sketcher.Constraint("PointOnObject", 42, 2, -2))
sketch2.addConstraint(Sketcher.Constraint("PointOnObject", 60, 2, -1))
sketch2.addConstraint(Sketcher.Constraint("Parallel", 0, 2))
sketch2.addConstraint(Sketcher.Constraint("Perpendicular", 2, 4))
sketch2.addConstraint(Sketcher.Constraint("Perpendicular", 6, 8))
sketch2.addConstraint(Sketcher.Constraint("Perpendicular", 8, 10))
sketch2.addConstraint(Sketcher.Constraint("Perpendicular", 12, 14))
sketch2.addConstraint(Sketcher.Constraint("Perpendicular", 14, 16))
sketch2.addConstraint(Sketcher.Constraint("Parallel", 4, 18))
sketch2.addConstraint(Sketcher.Constraint("Perpendicular", 18, 20))
sketch2.addConstraint(Sketcher.Constraint("Perpendicular", 20, 22))
sketch2.addConstraint(Sketcher.Constraint("Perpendicular", 10, 24))
sketch2.addConstraint(Sketcher.Constraint("Perpendicular", 24, 26))
sketch2.addConstraint(Sketcher.Constraint("Perpendicular", 26, 28))
sketch2.addConstraint(Sketcher.Constraint("Perpendicular", 16, 30))
sketch2.addConstraint(Sketcher.Constraint("Perpendicular", 30, 32))
sketch2.addConstraint(Sketcher.Constraint("Perpendicular", 32, 34))
sketch2.addConstraint(Sketcher.Constraint("Parallel", 34, 35))
sketch2.addConstraint(Sketcher.Constraint("Parallel", 35, 37))
sketch2.addConstraint(Sketcher.Constraint("Perpendicular", 22, 38))
sketch2.addConstraint(Sketcher.Constraint("Perpendicular", 28, 44))
sketch2.addConstraint(Sketcher.Constraint("Perpendicular", 46, 48))
sketch2.addConstraint(Sketcher.Constraint("Perpendicular", 37, 50))
sketch2.addConstraint(Sketcher.Constraint("Perpendicular", 52, 54))
sketch2.addConstraint(Sketcher.Constraint("Perpendicular", 42, 56))
sketch2.addConstraint(Sketcher.Constraint("Perpendicular", 48, 62))
sketch2.addConstraint(Sketcher.Constraint("Perpendicular", 64, 66))
sketch2.addConstraint(Sketcher.Constraint("Perpendicular", 54, 68))
sketch2.addConstraint(Sketcher.Constraint("Perpendicular", 70, 72))
sketch2.addConstraint(Sketcher.Constraint("Horizontal", 35, 2, 48, 2))
sketch2.addConstraint(Sketcher.Constraint("Horizontal", 28, 2, 54, 2))
sketch2.addConstraint(Sketcher.Constraint("Equal", 2, 6))
sketch2.addConstraint(Sketcher.Constraint("Equal", 4, 8))
sketch2.addConstraint(Sketcher.Constraint("Equal", 0, 10))
sketch2.addConstraint(Sketcher.Constraint("Equal", 6, 12))
sketch2.addConstraint(Sketcher.Constraint("Equal", 8, 14))
sketch2.addConstraint(Sketcher.Constraint("Equal", 10, 16))
sketch2.addConstraint(Sketcher.Constraint("Equal", 12, 18))
sketch2.addConstraint(Sketcher.Constraint("Equal", 14, 20))
sketch2.addConstraint(Sketcher.Constraint("Equal", 18, 24))
sketch2.addConstraint(Sketcher.Constraint("Equal", 20, 26))
sketch2.addConstraint(Sketcher.Constraint("Equal", 22, 28))
sketch2.addConstraint(Sketcher.Constraint("Equal", 26, 32))
sketch2.addConstraint(Sketcher.Constraint("Equal", 62, 68))
sketch2.addConstraint(Sketcher.Constraint("Radius", 3, 1.0))
sketch2.addConstraint(Sketcher.Constraint("Radius", 1, 18.5))
sketch2.addConstraint(Sketcher.Constraint("DistanceX", -1, 1, 10, 2, 9.25))
sketch2.addConstraint(Sketcher.Constraint("Distance", 4, 5.482099))
sketch2.addConstraint(Sketcher.Constraint("DistanceX", -1, 1, 3, 3, 7.175701))
sketch2.addConstraint(Sketcher.Constraint("Distance", 0, 3.932249))
sketch2.addConstraint(Sketcher.Constraint("Distance", 34, 0.36124))
sketch2.addConstraint(Sketcher.Constraint("Distance", 37, 3.557811))
pad2 = body.newObject("PartDesign::Pad", "Pad001")
pad2.Profile = sketch2
pad2.Length = 3

sketch3 = body.newObject("Sketcher::SketchObject", "Sketch002")
sketch3.AttachmentSupport = (doc.getObject("XY_Plane"), [""])
sketch3.MapMode = "FlatFace"
sketch3.AttachmentOffset = App.Placement(Vector(0, 0, 3), App.Rotation())
sketch3.addGeometry(Part.Circle(Vector(0, 0, 0), Vector(0, 0, 1), 1.6), False)
sketch3.addConstraint(Sketcher.Constraint("Coincident", 0, 3, -1, 1))
sketch3.addConstraint(Sketcher.Constraint("Diameter", 0, 3.2))
pocket1 = body.newObject("PartDesign::Pocket", "Pocket")
pocket1.Profile = sketch3
pocket1.Length = 3

doc.recompute()
